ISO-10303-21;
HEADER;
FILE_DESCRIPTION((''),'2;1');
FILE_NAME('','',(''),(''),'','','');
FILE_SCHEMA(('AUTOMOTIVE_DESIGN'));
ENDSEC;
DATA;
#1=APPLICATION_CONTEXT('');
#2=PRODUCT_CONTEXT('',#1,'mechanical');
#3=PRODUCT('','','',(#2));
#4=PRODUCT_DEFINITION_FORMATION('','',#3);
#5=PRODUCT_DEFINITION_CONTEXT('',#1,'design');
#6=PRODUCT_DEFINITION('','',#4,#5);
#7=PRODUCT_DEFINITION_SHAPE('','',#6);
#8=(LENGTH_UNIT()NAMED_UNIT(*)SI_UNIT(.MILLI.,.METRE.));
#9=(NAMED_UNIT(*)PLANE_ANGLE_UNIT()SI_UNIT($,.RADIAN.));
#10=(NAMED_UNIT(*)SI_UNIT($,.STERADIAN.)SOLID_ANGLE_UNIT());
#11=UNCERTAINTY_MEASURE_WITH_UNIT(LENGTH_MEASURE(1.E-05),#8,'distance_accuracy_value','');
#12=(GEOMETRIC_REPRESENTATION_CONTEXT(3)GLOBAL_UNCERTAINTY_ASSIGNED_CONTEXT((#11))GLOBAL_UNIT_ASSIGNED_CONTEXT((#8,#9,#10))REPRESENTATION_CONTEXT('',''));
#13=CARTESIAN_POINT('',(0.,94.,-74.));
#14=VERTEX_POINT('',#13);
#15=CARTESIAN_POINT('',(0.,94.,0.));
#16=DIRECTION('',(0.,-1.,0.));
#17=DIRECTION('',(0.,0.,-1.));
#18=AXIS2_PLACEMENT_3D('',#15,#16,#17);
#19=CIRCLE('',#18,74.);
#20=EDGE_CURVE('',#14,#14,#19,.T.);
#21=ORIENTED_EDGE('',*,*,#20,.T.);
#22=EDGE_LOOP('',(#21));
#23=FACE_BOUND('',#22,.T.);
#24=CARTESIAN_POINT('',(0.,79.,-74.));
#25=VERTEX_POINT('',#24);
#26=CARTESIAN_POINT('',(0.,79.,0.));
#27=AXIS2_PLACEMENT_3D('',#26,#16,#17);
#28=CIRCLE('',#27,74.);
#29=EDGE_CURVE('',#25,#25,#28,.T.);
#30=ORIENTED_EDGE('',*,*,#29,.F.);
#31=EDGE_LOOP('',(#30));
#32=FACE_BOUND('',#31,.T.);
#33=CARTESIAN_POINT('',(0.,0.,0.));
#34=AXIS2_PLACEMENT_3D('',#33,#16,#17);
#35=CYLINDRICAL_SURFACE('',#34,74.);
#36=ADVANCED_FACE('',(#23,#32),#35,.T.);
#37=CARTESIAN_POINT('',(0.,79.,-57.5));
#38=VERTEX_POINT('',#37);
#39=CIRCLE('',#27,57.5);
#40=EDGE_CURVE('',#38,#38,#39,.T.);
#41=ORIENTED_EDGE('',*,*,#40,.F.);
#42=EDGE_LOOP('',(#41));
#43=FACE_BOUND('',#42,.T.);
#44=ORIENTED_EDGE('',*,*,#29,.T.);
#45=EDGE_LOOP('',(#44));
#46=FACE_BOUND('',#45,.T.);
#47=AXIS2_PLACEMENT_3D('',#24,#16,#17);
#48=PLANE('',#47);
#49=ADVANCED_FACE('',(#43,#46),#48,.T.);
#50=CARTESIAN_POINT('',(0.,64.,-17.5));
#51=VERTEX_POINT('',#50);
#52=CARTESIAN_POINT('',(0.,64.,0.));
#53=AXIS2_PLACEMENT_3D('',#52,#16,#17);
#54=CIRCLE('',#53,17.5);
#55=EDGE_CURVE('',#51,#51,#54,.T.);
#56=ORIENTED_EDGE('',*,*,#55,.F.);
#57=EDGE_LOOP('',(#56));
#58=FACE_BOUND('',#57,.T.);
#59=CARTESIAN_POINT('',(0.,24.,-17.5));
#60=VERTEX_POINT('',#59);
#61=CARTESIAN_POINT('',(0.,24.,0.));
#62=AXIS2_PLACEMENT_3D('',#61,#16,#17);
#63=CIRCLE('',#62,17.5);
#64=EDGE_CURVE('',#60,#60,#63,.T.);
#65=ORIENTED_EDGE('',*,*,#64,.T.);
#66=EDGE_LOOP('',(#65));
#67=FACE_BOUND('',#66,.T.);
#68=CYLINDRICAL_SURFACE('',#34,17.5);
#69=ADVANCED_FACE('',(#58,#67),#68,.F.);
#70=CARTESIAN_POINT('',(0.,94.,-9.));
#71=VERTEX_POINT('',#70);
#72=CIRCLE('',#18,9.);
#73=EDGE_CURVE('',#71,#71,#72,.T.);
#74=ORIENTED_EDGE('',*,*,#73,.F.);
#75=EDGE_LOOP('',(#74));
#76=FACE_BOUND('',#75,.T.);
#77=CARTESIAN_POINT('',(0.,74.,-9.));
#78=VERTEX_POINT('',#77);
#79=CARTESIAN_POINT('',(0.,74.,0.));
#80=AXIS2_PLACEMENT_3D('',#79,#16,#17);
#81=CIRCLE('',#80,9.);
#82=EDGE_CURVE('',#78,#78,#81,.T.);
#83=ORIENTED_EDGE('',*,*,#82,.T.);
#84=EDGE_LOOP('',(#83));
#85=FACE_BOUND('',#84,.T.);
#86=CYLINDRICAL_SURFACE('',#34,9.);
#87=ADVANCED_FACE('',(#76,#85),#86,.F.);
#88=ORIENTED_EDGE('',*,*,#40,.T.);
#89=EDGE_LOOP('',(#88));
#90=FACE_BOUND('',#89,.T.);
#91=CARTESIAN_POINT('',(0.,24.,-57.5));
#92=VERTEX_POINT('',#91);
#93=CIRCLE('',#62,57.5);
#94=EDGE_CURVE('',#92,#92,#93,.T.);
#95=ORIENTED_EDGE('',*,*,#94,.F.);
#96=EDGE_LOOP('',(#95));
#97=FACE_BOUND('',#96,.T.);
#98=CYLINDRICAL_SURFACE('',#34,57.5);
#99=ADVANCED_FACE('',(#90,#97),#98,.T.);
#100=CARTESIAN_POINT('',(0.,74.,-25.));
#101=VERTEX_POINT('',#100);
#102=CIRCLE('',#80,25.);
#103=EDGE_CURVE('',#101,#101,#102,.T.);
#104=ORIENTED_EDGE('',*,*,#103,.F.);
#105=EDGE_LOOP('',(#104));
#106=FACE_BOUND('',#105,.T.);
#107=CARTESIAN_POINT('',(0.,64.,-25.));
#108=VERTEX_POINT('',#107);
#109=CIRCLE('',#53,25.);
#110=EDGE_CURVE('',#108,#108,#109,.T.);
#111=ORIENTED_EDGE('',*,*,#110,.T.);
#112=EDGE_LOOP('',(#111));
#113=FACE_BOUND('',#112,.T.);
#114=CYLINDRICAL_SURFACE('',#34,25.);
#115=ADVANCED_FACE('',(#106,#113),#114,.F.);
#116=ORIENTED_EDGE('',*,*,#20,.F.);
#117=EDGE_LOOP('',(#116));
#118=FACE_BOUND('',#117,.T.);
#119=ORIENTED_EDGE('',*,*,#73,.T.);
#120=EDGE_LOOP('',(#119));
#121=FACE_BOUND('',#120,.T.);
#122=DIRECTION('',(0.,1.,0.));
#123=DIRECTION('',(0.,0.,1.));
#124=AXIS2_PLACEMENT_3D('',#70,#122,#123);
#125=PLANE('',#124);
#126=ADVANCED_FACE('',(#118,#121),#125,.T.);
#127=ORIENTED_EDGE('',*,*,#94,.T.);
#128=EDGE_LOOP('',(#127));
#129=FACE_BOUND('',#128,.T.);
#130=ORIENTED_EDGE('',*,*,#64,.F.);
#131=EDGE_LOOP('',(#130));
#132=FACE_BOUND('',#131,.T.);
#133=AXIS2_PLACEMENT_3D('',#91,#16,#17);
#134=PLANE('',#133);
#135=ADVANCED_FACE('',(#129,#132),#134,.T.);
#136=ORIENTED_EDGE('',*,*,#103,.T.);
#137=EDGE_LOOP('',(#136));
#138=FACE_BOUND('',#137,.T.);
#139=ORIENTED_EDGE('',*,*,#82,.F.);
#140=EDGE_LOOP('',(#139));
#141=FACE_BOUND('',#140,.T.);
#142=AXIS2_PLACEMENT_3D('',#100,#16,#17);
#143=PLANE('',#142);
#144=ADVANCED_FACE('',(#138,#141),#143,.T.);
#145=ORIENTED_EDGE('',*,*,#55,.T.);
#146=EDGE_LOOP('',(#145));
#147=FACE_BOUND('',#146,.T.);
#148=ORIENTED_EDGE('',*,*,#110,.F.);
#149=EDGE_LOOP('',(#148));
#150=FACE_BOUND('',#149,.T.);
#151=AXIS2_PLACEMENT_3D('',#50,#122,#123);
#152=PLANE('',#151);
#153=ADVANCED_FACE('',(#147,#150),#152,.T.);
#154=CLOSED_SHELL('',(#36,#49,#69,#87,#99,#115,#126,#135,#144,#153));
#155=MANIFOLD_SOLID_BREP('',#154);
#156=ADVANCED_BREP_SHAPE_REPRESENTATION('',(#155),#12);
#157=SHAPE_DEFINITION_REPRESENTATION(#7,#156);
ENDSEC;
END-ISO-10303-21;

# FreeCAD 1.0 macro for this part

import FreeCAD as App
import Part
import Sketcher

V = App.Vector

doc = App.newDocument("Part")
body = doc.addObject("PartDesign::Body", "Body")

# Sketch on YZ plane
sketch1 = body.newObject("Sketcher::SketchObject", "Sketch")
sketch1.AttachmentSupport = (doc.getObject("YZ_Plane"), [""])
sketch1.MapMode = "FlatFace"
sketch1.addGeometry(Part.LineSegment(V(64, -17.5, 0), V(24, -17.5, 0)), False)
sketch1.addGeometry(Part.LineSegment(V(24, -17.5, 0), V(24, -57.5, 0)), False)
sketch1.addGeometry(Part.LineSegment(V(24, -57.5, 0), V(79, -57.5, 0)), False)
sketch1.addGeometry(Part.LineSegment(V(79, -57.5, 0), V(79, -74, 0)), False)
sketch1.addGeometry(Part.LineSegment(V(79, -74, 0), V(94, -74, 0)), False)
sketch1.addGeometry(Part.LineSegment(V(94, -74, 0), V(94, -9, 0)), False)
sketch1.addGeometry(Part.LineSegment(V(94, -9, 0), V(74, -9, 0)), False)
sketch1.addGeometry(Part.LineSegment(V(74, -9, 0), V(74, -25, 0)), False)
sketch1.addGeometry(Part.LineSegment(V(74, -25, 0), V(64, -25, 0)), False)
sketch1.addGeometry(Part.LineSegment(V(64, -25, 0), V(64, -17.5, 0)), False)
sketch1.addConstraint(Sketcher.Constraint("Coincident", 0, 2, 1, 1))
sketch1.addConstraint(Sketcher.Constraint("Coincident", 1, 2, 2, 1))
sketch1.addConstraint(Sketcher.Constraint("Coincident", 2, 2, 3, 1))
sketch1.addConstraint(Sketcher.Constraint("Coincident", 3, 2, 4, 1))
sketch1.addConstraint(Sketcher.Constraint("Coincident", 4, 2, 5, 1))
sketch1.addConstraint(Sketcher.Constraint("Coincident", 5, 2, 6, 1))
sketch1.addConstraint(Sketcher.Constraint("Coincident", 6, 2, 7, 1))
sketch1.addConstraint(Sketcher.Constraint("Coincident", 7, 2, 8, 1))
sketch1.addConstraint(Sketcher.Constraint("Coincident", 8, 2, 9, 1))
sketch1.addConstraint(Sketcher.Constraint("Coincident", 9, 2, 0, 1))
sketch1.addConstraint(Sketcher.Constraint("Horizontal", 0))
sketch1.addConstraint(Sketcher.Constraint("Vertical", 1))
sketch1.addConstraint(Sketcher.Constraint("Horizontal", 2))
sketch1.addConstraint(Sketcher.Constraint("Vertical", 3))
sketch1.addConstraint(Sketcher.Constraint("Horizontal", 4))
sketch1.addConstraint(Sketcher.Constraint("Vertical", 5))
sketch1.addConstraint(Sketcher.Constraint("Horizontal", 6))
sketch1.addConstraint(Sketcher.Constraint("Vertical", 7))
sketch1.addConstraint(Sketcher.Constraint("Horizontal", 8))
sketch1.addConstraint(Sketcher.Constraint("Vertical", 9))
sketch1.addConstraint(Sketcher.Constraint("Equal", 0, 1))
sketch1.addConstraint(Sketcher.Constraint("DistanceX", 0, 2, 0, 1, 40.0))
sketch1.addConstraint(Sketcher.Constraint("DistanceX", 2, 1, 2, 2, 55.0))
sketch1.addConstraint(Sketcher.Constraint("DistanceX", 4, 1, 4, 2, 15.0))
sketch1.addConstraint(Sketcher.Constraint("DistanceX", 6, 2, 6, 1, 20.0))
sketch1.addConstraint(Sketcher.Constraint("DistanceY", 5, 1, 5, 2, 65.0))
sketch1.addConstraint(Sketcher.Constraint("DistanceY", 7, 2, 7, 1, 16.0))
sketch1.addConstraint(Sketcher.Constraint("DistanceY", 3, 2, 3, 1, 16.5))
sketch1.addConstraint(Sketcher.Constraint("DistanceX", -1, 1, 0, 2, 24.0))
sketch1.addConstraint(Sketcher.Constraint("DistanceY", 3, 2, -1, 1, 74.0))
revolution = body.newObject("PartDesign::Revolution", "Revolution")
revolution.Profile = sketch1
revolution.ReferenceAxis = (sketch1, ["H_Axis"])
revolution.Angle = 360

doc.recompute()
